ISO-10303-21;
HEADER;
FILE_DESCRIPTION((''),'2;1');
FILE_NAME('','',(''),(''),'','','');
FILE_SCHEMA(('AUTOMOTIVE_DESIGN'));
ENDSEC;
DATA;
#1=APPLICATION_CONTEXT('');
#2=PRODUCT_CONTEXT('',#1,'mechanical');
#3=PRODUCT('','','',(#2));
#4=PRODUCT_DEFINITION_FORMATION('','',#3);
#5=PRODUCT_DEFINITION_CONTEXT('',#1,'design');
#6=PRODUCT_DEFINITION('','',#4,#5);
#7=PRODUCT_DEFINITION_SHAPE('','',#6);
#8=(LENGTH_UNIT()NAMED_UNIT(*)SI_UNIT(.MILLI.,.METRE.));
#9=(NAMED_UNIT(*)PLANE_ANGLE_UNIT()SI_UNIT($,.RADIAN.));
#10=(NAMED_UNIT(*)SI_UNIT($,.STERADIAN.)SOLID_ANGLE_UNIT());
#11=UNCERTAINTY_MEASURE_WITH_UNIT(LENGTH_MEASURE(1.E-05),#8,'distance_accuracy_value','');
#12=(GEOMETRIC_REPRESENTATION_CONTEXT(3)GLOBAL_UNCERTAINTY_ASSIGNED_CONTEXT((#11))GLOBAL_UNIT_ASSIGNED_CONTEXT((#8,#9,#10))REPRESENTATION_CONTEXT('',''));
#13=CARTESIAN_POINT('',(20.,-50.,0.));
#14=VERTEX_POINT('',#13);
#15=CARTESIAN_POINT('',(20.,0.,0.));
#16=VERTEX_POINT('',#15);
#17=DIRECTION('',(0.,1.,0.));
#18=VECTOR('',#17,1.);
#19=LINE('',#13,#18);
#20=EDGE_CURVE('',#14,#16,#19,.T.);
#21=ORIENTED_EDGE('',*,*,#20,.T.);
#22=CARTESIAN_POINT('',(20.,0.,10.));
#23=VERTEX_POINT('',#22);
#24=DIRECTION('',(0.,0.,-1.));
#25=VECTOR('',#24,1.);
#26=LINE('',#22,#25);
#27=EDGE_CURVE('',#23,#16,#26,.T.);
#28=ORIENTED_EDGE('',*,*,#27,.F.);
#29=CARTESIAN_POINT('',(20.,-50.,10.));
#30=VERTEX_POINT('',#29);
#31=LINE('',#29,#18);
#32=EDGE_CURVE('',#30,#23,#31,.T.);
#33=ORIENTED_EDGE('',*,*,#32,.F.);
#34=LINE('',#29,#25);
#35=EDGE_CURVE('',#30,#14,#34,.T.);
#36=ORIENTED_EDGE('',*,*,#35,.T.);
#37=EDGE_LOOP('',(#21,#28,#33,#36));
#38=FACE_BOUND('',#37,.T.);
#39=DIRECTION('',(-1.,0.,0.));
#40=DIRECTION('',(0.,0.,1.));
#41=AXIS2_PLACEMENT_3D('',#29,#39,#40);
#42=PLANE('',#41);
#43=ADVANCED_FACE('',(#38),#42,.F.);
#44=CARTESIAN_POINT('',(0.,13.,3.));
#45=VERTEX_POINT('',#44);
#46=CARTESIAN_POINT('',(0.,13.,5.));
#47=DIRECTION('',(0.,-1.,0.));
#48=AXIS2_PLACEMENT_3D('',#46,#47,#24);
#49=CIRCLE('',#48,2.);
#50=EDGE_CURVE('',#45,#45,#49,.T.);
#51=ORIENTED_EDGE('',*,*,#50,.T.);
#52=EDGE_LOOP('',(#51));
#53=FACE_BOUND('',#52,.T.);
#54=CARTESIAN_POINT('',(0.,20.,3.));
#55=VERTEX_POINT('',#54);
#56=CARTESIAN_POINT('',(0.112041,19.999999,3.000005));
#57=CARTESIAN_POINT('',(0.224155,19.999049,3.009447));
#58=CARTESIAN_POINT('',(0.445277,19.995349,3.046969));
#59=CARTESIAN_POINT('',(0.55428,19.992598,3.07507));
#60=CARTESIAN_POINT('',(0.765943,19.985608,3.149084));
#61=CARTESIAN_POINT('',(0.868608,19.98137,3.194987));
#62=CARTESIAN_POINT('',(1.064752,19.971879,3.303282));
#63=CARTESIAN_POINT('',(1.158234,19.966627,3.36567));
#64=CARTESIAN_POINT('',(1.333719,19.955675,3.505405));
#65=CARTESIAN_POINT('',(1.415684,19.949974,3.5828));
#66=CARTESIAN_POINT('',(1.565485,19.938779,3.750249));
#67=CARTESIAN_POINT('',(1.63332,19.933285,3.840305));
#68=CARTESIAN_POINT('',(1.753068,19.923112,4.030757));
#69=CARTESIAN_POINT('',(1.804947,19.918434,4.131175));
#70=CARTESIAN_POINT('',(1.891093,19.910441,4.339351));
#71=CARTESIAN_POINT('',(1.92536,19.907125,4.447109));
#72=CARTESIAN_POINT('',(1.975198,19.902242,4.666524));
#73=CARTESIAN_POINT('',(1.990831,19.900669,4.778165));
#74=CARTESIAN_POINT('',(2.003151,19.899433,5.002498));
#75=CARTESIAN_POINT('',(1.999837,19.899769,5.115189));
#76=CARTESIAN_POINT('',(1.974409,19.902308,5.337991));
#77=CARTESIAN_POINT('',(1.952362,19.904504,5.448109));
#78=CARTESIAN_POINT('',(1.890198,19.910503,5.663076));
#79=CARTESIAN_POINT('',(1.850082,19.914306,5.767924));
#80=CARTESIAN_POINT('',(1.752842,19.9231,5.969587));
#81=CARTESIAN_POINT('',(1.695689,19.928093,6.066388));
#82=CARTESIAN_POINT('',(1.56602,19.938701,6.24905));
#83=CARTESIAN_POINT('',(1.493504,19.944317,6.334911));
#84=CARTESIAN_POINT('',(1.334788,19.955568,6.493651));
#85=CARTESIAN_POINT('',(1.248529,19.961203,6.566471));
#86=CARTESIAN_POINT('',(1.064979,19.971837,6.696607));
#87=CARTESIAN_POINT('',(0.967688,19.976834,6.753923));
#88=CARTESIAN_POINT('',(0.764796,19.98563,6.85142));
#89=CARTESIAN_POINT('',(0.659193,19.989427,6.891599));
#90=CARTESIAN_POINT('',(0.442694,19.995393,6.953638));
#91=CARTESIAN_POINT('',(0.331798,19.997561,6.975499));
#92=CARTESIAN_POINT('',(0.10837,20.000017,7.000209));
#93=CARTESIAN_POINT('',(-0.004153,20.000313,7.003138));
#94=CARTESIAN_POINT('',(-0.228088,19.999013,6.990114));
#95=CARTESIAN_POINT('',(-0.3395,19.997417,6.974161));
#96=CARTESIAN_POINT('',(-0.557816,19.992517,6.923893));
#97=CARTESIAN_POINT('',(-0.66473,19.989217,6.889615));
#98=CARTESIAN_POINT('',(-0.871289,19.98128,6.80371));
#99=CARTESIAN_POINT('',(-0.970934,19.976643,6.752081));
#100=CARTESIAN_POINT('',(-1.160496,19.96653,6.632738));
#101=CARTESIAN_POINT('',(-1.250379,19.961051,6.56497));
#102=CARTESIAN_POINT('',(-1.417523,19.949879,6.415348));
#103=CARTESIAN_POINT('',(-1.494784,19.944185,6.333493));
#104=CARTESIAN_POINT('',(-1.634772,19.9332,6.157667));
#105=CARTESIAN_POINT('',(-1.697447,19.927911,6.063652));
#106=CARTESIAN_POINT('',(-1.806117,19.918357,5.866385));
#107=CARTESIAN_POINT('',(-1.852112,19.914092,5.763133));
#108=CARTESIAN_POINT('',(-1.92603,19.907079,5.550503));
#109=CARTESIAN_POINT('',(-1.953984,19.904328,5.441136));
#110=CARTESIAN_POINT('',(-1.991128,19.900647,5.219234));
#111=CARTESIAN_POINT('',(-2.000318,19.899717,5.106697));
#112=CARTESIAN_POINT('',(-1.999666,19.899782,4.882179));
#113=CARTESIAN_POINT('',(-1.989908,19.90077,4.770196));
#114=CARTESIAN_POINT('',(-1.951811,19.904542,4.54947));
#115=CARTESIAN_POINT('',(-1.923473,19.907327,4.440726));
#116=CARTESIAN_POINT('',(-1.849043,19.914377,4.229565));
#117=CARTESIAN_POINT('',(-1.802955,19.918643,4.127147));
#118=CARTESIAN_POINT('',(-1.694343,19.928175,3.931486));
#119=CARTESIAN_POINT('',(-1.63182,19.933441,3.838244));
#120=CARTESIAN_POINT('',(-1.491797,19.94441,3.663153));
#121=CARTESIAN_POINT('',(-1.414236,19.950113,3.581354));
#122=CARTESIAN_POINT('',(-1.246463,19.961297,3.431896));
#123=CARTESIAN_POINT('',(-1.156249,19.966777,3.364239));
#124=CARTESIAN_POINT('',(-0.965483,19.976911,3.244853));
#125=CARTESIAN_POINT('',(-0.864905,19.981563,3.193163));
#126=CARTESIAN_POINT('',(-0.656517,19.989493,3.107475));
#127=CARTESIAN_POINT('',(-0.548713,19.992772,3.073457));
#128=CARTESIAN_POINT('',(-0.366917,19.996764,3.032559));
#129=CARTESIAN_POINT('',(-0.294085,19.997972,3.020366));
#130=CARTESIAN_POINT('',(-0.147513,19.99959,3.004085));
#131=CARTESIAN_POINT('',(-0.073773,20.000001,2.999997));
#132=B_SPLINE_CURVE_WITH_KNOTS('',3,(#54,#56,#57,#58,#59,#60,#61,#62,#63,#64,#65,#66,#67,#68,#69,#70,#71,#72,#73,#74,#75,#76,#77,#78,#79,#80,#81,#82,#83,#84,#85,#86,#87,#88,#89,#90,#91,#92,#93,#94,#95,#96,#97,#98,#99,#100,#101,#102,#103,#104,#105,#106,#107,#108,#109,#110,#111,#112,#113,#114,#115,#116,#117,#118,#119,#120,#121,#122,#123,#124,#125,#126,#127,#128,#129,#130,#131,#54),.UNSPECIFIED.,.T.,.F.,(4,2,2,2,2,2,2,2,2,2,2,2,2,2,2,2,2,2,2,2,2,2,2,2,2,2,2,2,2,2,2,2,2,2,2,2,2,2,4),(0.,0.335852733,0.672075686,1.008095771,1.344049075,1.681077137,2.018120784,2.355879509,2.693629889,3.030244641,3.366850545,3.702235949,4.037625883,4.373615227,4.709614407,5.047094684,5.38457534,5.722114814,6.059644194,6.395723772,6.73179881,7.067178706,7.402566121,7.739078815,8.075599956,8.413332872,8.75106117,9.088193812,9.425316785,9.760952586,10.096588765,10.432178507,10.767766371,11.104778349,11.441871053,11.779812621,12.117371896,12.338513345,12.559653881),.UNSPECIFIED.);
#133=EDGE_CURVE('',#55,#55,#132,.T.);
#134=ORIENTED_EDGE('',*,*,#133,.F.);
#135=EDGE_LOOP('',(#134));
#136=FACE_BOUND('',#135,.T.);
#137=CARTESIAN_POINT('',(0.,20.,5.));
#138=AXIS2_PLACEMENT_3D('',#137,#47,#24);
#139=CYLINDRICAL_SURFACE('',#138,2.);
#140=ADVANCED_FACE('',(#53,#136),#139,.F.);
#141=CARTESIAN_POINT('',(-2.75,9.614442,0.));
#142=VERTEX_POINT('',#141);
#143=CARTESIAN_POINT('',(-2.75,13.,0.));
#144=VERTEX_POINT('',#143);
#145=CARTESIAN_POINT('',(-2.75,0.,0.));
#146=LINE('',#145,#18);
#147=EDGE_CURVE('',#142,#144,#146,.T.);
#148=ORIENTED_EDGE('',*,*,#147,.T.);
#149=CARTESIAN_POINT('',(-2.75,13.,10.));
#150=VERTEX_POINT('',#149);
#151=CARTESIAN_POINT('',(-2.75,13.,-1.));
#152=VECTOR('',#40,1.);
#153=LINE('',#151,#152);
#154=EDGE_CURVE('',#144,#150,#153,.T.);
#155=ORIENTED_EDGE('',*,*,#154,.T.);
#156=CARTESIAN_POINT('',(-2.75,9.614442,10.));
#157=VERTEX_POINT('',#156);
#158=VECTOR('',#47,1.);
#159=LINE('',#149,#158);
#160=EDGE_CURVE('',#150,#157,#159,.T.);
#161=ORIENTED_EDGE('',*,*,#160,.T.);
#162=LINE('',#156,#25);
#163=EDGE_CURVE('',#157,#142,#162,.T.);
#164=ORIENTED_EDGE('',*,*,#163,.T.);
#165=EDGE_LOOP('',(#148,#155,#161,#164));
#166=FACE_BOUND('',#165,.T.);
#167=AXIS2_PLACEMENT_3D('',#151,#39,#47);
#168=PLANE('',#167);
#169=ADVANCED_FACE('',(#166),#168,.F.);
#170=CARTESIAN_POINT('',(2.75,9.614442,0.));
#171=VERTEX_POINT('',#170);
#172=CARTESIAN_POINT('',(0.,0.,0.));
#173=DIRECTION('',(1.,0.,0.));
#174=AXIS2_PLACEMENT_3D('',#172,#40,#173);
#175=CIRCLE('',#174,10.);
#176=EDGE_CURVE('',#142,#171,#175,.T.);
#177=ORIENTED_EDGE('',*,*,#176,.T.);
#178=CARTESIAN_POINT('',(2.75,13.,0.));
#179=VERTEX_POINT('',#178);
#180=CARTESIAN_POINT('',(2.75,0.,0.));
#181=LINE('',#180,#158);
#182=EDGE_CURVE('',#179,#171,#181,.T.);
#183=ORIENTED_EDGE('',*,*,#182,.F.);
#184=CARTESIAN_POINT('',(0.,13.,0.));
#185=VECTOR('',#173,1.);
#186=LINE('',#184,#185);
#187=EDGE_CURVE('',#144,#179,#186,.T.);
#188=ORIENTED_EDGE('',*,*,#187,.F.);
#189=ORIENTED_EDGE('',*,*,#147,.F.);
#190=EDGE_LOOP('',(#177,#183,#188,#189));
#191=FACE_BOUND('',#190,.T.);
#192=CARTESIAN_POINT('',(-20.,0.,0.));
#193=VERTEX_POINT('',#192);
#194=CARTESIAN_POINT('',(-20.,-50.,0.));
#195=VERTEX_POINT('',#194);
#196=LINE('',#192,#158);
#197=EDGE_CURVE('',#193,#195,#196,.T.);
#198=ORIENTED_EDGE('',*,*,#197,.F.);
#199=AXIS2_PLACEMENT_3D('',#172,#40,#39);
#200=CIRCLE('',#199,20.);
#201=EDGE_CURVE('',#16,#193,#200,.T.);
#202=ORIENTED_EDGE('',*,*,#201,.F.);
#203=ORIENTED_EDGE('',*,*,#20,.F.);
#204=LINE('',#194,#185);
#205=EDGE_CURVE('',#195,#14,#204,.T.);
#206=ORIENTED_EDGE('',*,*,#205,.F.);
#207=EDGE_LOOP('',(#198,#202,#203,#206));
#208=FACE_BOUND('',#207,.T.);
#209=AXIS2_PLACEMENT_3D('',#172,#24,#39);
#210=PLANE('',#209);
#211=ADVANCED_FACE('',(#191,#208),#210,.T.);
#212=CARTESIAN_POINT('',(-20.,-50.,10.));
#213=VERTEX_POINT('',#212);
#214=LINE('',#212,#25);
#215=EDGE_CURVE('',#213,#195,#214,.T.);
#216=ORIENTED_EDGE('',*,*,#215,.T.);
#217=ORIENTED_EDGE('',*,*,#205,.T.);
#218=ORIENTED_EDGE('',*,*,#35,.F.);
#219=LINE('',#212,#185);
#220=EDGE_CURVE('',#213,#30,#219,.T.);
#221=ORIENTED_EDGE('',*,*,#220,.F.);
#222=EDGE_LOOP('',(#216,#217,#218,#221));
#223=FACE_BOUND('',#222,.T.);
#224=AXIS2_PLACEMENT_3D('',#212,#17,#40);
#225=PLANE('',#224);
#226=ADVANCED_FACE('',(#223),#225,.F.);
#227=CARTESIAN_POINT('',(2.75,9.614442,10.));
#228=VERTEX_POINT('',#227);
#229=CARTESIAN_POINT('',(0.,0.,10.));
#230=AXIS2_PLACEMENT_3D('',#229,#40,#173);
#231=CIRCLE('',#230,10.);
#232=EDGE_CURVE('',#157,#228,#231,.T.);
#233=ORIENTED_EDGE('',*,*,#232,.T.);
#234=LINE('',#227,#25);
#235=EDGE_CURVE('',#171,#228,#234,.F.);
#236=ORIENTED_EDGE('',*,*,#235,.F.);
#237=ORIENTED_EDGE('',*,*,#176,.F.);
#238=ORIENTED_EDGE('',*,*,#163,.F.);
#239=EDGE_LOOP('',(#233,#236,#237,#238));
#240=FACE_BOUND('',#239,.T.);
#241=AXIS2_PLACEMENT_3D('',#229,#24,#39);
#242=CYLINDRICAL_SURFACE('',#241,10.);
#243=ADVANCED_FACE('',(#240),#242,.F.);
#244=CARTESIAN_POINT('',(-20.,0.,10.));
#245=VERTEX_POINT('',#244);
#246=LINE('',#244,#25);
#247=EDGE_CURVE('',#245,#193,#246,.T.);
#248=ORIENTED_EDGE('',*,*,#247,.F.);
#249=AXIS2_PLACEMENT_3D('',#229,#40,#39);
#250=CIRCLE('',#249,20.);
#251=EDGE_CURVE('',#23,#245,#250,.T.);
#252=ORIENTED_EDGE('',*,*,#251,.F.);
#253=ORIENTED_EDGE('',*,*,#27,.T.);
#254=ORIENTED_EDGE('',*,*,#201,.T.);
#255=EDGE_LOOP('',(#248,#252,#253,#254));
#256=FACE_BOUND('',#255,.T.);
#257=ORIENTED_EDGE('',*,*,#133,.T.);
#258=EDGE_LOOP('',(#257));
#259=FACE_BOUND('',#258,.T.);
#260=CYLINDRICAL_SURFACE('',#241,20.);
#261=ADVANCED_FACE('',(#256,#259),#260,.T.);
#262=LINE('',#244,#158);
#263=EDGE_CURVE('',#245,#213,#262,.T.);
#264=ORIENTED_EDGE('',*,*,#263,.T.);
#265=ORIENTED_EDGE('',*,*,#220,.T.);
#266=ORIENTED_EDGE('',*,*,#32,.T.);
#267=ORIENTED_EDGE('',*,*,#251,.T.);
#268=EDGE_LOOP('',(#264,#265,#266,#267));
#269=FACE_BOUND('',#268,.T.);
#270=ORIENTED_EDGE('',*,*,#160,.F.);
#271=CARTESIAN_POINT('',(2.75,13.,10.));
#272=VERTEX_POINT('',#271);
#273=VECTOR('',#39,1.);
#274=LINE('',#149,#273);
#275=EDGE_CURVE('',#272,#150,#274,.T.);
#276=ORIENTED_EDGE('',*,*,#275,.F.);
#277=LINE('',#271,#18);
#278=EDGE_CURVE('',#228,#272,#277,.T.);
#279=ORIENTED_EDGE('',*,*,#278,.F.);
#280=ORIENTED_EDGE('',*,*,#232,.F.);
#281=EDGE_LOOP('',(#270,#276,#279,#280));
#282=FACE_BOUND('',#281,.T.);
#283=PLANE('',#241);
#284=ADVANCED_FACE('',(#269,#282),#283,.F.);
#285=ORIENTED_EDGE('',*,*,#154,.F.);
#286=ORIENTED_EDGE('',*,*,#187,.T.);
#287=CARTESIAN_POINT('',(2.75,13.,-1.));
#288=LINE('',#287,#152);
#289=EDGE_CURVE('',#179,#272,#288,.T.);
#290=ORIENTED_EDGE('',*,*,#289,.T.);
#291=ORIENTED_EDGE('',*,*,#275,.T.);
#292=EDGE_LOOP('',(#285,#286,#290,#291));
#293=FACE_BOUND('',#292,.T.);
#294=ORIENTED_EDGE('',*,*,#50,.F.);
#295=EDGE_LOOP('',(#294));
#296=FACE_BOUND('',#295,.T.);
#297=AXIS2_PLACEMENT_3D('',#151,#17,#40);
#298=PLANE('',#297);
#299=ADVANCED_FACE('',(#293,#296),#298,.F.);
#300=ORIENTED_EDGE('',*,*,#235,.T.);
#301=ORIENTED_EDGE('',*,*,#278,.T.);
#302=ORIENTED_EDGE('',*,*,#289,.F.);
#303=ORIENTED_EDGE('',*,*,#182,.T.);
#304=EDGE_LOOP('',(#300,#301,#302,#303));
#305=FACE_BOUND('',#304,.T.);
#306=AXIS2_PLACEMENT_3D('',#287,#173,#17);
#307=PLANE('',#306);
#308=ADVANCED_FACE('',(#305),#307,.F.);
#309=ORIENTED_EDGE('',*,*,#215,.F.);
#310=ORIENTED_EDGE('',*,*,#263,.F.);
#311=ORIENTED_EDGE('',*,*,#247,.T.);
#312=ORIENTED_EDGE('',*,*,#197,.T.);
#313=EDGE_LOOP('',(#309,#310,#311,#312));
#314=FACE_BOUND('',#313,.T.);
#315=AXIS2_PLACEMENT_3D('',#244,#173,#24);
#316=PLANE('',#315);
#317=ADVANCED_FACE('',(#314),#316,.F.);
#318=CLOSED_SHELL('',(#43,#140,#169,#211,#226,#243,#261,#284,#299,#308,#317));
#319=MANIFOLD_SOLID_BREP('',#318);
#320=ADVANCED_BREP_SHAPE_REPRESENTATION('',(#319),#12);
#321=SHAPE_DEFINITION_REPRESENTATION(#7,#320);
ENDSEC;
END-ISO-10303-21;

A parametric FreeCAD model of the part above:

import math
import FreeCAD as App
import Part
import Sketcher

V = App.Vector
Q = App.Units.Quantity


def add_polygon(sketch, points):
    """Adds a closed chain of lines whose ends are joined by coincident constraints."""
    first, n = sketch.GeometryCount, len(points)
    for a, b in zip(points, points[1:] + points[:1]):
        sketch.addGeometry(Part.LineSegment(App.Vector(*a, 0), App.Vector(*b, 0)), False)
    for i in range(n):
        sketch.addConstraint(Sketcher.Constraint("Coincident", first + i, 2, first + (i + 1) % n, 1))

doc = App.newDocument("Part")
params = doc.addObject("Spreadsheet::Sheet", "Params")
for row, (alias, value) in enumerate([
    ("sketch1_diameter", "20 mm"),
    ("sketch1_radius", "20 mm"),
    ("sketch1_height", "50 mm"),
    ("pad1_length", "10 mm"),
    ("sketch2_width", "5.5 mm"),
    ("sketch2_height", "3.5 mm"),
    ("pocket1_length", "11 mm"),
    ("sketch3_diameter", "4 mm"),
    ("pocket2_length", "7 mm"),
], start=1):
    params.set(f"A{row}", alias)
    params.set(f"B{row}", "=" + value)
    params.setAlias(f"B{row}", alias)

body = doc.addObject("PartDesign::Body", "Body")

sketch1 = body.newObject("Sketcher::SketchObject", "Sketch")
sketch1.AttachmentSupport = (doc.getObject("XY_Plane"), [""])
sketch1.MapMode = "FlatFace"
sketch1.addGeometry([
    Part.LineSegment(V(-20, 0, 0), V(-20, -50, 0)),
    Part.LineSegment(V(-20, -50, 0), V(20, -50, 0)),
    Part.LineSegment(V(20, -50, 0), V(20, 0, 0)),
    Part.ArcOfCircle(Part.Circle(V(0, 0, 0), V(0, 0, 1), 20), math.radians(0), math.radians(180)),
    Part.Circle(V(0, 0, 0), V(0, 0, 1), 10),
], False)
sketch1.addConstraint([
    Sketcher.Constraint("Coincident", 0, 2, 1, 1),
    Sketcher.Constraint("Coincident", 1, 2, 2, 1),
    Sketcher.Constraint("Tangent", 2, 2, 3, 1),
    Sketcher.Constraint("Tangent", 3, 2, 0, 1),
    Sketcher.Constraint("Vertical", 0),
    Sketcher.Constraint("Horizontal", 1),
    Sketcher.Constraint("Vertical", 2),
    Sketcher.Constraint("Coincident", 3, 3, -1, 1),
    Sketcher.Constraint("Coincident", 4, 3, -1, 1),
    Sketcher.Constraint("Diameter", 4, Q("20 mm")),
    Sketcher.Constraint("Radius", 3, Q("20 mm")),
    Sketcher.Constraint("DistanceY", 0, 2, 0, 1, Q("50 mm")),
])
sketch1.setExpression("Constraints[9]", "Params.sketch1_diameter")
sketch1.setExpression("Constraints[10]", "Params.sketch1_radius")
sketch1.setExpression("Constraints[11]", "Params.sketch1_height")
pad1 = body.newObject("PartDesign::Pad", "Pad")
pad1.Profile = sketch1
pad1.setExpression("Length", "Params.pad1_length")

sketch2 = body.newObject("Sketcher::SketchObject", "Sketch001")
sketch2.AttachmentSupport = (doc.getObject("XY_Plane"), [""])
sketch2.MapMode = "FlatFace"
sketch2.AttachmentOffset = App.Placement(V(0, 0, 10), App.Rotation())
add_polygon(sketch2, [(-2.8, 13), (-2.8, 9.5), (2.8, 9.5), (2.8, 13)])
sketch2.addConstraint([
    Sketcher.Constraint("Vertical", 0),
    Sketcher.Constraint("Horizontal", 1),
    Sketcher.Constraint("Vertical", 2),
    Sketcher.Constraint("Horizontal", 3),
    Sketcher.Constraint("DistanceX", 1, 1, 1, 2, Q("5.5 mm")),
    Sketcher.Constraint("DistanceY", 0, 2, 0, 1, Q("3.5 mm")),
    Sketcher.Constraint("DistanceY", -1, 1, 2, 2, Q("13 mm")),
    Sketcher.Constraint("DistanceX", 0, 2, -1, 1, Q("2.75 mm")),
])
sketch2.setExpression("Constraints[8]", "Params.sketch2_width")
sketch2.setExpression("Constraints[9]", "Params.sketch2_height")
pocket1 = body.newObject("PartDesign::Pocket", "Pocket")
pocket1.Profile = sketch2
pocket1.setExpression("Length", "Params.pocket1_length")

sketch3 = body.newObject("Sketcher::SketchObject", "Sketch002")
sketch3.AttachmentSupport = (doc.getObject("XZ_Plane"), [""])
sketch3.MapMode = "FlatFace"
sketch3.AttachmentOffset = App.Placement(V(0, 0, -13), App.Rotation())
sketch3.addGeometry(Part.Circle(V(0, 5, 0), V(0, 0, 1), 2), False)
sketch3.addConstraint([
    Sketcher.Constraint("PointOnObject", 0, 3, -2),
    Sketcher.Constraint("Diameter", 0, Q("4 mm")),
    Sketcher.Constraint("DistanceY", -1, 1, 0, 3, Q("5 mm")),
])
sketch3.setExpression("Constraints[1]", "Params.sketch3_diameter")
pocket2 = body.newObject("PartDesign::Pocket", "Pocket001")
pocket2.Profile = sketch3
pocket2.setExpression("Length", "Params.pocket2_length")

doc.recompute()
